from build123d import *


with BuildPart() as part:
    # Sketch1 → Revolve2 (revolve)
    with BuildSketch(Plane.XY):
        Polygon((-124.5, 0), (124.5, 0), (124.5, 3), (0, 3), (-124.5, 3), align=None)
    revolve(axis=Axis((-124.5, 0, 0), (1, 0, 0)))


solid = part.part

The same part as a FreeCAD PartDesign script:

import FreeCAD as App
import Part
import Sketcher
from FreeCAD import Vector
Q = App.Units.Quantity

doc = App.newDocument("Part")
body = doc.addObject("PartDesign::Body", "Body")

# Sketch on XY plane
sketch1 = doc.addObject("Sketcher::SketchObject", "Sketch")
body.addObject(sketch1)
sketch1.AttachmentSupport = (doc.XY_Plane, [""])
sketch1.MapMode = "FlatFace"
sketch1.addGeometry([
    Part.LineSegment(Vector(-124.5, 0, 0), Vector(124.5, 0, 0)),
    Part.LineSegment(Vector(124.5, 0, 0), Vector(124.5, 3, 0)),
    Part.LineSegment(Vector(124.5, 3, 0), Vector(-124.5, 3, 0)),
    Part.LineSegment(Vector(-124.5, 3, 0), Vector(-124.5, 0, 0)),
], False)
sketch1.addConstraint([
    Sketcher.Constraint("Coincident", 0, 2, 1, 1),
    Sketcher.Constraint("Coincident", 1, 2, 2, 1),
    Sketcher.Constraint("Coincident", 2, 2, 3, 1),
    Sketcher.Constraint("Coincident", 3, 2, 0, 1),
    Sketcher.Constraint("Horizontal", 0),
    Sketcher.Constraint("Vertical", 1),
    Sketcher.Constraint("Horizontal", 2),
    Sketcher.Constraint("Vertical", 3),
    Sketcher.Constraint("Symmetric", 0, 2, 3, 2, -1, 1),
    Sketcher.Constraint("DistanceX", 0, 1, 0, 2, Q("249 mm")),
    Sketcher.Constraint("DistanceY", 1, 1, 1, 2, Q("3 mm")),
])
revolution = doc.addObject("PartDesign::Revolution", "Revolution")
body.addObject(revolution)
revolution.Profile = sketch1
revolution.ReferenceAxis = (sketch1, ["H_Axis"])
revolution.Angle = 360

doc.recompute()
